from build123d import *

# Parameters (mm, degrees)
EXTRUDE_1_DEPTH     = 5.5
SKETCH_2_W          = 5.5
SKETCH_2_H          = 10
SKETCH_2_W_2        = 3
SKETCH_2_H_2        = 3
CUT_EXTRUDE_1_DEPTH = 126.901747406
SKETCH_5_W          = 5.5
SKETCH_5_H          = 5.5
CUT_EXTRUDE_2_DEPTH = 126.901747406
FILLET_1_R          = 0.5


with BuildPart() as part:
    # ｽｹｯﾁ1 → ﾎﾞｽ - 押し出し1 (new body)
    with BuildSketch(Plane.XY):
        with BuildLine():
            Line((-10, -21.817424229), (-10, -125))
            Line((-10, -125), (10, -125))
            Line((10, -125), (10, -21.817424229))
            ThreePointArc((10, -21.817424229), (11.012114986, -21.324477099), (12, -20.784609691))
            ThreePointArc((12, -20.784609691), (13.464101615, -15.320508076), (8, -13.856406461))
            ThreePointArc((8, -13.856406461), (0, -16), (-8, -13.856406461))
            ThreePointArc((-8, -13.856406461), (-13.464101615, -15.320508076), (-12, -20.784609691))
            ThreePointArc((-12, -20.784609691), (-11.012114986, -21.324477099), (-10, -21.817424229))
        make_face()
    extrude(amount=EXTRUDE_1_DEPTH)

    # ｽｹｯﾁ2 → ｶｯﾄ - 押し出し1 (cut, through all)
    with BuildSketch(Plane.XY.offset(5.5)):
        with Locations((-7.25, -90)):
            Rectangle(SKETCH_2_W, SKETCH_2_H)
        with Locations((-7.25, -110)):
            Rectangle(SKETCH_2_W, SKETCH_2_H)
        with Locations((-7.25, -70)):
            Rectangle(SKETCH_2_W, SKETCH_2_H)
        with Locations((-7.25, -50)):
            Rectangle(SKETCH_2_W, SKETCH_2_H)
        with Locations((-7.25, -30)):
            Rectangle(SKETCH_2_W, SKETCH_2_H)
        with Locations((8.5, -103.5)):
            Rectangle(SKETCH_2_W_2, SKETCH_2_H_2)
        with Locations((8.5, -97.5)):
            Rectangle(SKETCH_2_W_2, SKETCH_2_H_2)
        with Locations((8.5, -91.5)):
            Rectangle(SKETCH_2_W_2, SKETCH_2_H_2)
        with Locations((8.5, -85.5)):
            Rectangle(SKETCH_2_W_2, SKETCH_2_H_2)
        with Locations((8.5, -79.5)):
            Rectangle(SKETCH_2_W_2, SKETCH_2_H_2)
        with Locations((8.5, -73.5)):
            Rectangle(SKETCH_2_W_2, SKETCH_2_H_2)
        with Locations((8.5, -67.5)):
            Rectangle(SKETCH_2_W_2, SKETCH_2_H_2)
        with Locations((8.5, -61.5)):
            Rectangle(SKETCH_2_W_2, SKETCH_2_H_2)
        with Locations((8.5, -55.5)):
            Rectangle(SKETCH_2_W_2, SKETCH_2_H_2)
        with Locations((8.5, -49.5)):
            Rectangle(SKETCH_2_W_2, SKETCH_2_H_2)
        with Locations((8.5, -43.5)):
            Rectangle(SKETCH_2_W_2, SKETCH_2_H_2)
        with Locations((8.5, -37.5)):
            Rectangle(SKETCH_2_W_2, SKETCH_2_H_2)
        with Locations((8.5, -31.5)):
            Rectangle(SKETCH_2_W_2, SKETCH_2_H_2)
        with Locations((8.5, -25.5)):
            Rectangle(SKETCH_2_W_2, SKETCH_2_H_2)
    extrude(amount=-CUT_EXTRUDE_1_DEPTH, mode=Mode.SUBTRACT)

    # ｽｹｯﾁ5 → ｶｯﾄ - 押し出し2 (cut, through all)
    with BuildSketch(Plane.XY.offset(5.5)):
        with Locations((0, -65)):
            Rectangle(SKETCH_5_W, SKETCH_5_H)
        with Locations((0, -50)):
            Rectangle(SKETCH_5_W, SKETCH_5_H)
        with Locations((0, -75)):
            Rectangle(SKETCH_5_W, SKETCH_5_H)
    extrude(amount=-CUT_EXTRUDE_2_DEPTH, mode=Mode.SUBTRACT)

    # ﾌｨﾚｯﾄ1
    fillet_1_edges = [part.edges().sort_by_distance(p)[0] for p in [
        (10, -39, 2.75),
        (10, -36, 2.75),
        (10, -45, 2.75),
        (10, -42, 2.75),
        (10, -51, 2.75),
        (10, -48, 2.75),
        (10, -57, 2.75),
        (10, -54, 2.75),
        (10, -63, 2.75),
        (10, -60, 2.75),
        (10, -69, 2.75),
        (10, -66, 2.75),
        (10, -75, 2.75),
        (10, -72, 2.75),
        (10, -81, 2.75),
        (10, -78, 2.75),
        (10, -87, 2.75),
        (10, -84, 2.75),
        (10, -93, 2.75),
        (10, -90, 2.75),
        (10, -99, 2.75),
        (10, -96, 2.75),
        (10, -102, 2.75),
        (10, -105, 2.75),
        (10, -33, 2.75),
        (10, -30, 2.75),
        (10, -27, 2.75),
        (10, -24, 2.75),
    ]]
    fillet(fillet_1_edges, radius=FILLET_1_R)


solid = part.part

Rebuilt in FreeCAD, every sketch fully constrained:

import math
import FreeCAD as App
import Part
import Sketcher

V = App.Vector


def edges_at(feature, points):
    """Names of the edges that pass closest to the given points."""
    edges = feature.Shape.Edges
    near = lambda p: min(range(len(edges)), key=lambda i: edges[i].distToShape(Part.Vertex(*p))[0])
    return sorted({f"Edge{near(p) + 1}" for p in points})


def add_polygon(sketch, points):
    """Adds a closed chain of lines whose ends are joined by coincident constraints."""
    first, n = sketch.GeometryCount, len(points)
    for a, b in zip(points, points[1:] + points[:1]):
        sketch.addGeometry(Part.LineSegment(App.Vector(*a, 0), App.Vector(*b, 0)), False)
    for i in range(n):
        sketch.addConstraint(Sketcher.Constraint("Coincident", first + i, 2, first + (i + 1) % n, 1))

doc = App.newDocument("Part")
body = doc.addObject("PartDesign::Body", "Body")

sketch1 = body.newObject("Sketcher::SketchObject", "Sketch")
sketch1.AttachmentSupport = (doc.getObject("XY_Plane"), [""])
sketch1.MapMode = "FlatFace"
sketch1.addGeometry([
    Part.LineSegment(V(-10, -21.817424, 0), V(-10, -125, 0)),
    Part.LineSegment(V(-10, -125, 0), V(10, -125, 0)),
    Part.LineSegment(V(10, -125, 0), V(10, -21.817424, 0)),
    Part.ArcOfCircle(Part.Circle(V(0, 0, 0), V(0, 0, 1), 24), math.radians(-65.375682), math.radians(-60)),
    Part.ArcOfCircle(Part.Circle(V(10, -17.320508, 0), V(0, 0, 1), 4), math.radians(-60), math.radians(120)),
    Part.ArcOfCircle(Part.Circle(V(0, 0, 0), V(0, 0, 1), 16), math.radians(-120), math.radians(-60)),
    Part.ArcOfCircle(Part.Circle(V(-10, -17.320508, 0), V(0, 0, 1), 4), math.radians(60), math.radians(240)),
    Part.ArcOfCircle(Part.Circle(V(0, 0, 0), V(0, 0, 1), 24), math.radians(-120), math.radians(-114.624318)),
], False)
sketch1.addConstraint([
    Sketcher.Constraint("Coincident", 0, 2, 1, 1),
    Sketcher.Constraint("Coincident", 1, 2, 2, 1),
    Sketcher.Constraint("Coincident", 2, 2, 3, 1),
    Sketcher.Constraint("Tangent", 3, 2, 4, 1),
    Sketcher.Constraint("Tangent", 4, 2, 5, 2),
    Sketcher.Constraint("Tangent", 5, 1, 6, 1),
    Sketcher.Constraint("Tangent", 6, 2, 7, 1),
    Sketcher.Constraint("Coincident", 7, 2, 0, 1),
    Sketcher.Constraint("Vertical", 0),
    Sketcher.Constraint("Horizontal", 1),
    Sketcher.Constraint("Vertical", 2),
    Sketcher.Constraint("Coincident", 3, 3, -1, 1),
    Sketcher.Constraint("Coincident", 5, 3, -1, 1),
    Sketcher.Constraint("Coincident", 7, 3, -1, 1),
    Sketcher.Constraint("Equal", 4, 6),
    Sketcher.Constraint("Horizontal", 4, 3, 6, 3),
    Sketcher.Constraint("Horizontal", 2, 2, 7, 2),
    Sketcher.Constraint("Vertical", 6, 3, 0, 2),
    Sketcher.Constraint("Radius", 3, 24.0),
    Sketcher.Constraint("Radius", 4, 4.0),
    Sketcher.Constraint("DistanceX", 1, 1, 1, 2, 20.0),
    Sketcher.Constraint("DistanceY", 0, 2, -1, 1, 125.0),
])
pad1 = body.newObject("PartDesign::Pad", "Pad")
pad1.Profile = sketch1
pad1.Length = 5.5

sketch2 = body.newObject("Sketcher::SketchObject", "Sketch001")
sketch2.AttachmentSupport = (doc.getObject("XY_Plane"), [""])
sketch2.MapMode = "FlatFace"
sketch2.AttachmentOffset = App.Placement(V(0, 0, 5.5), App.Rotation())
add_polygon(sketch2, [(-10, -85), (-10, -95), (-4.5, -95), (-4.5, -85)])
add_polygon(sketch2, [(-10, -105), (-10, -115), (-4.5, -115), (-4.5, -105)])
add_polygon(sketch2, [(-10, -65), (-10, -75), (-4.5, -75), (-4.5, -65)])
add_polygon(sketch2, [(-10, -45), (-10, -55), (-4.5, -55), (-4.5, -45)])
add_polygon(sketch2, [(-10, -25), (-10, -35), (-4.5, -35), (-4.5, -25)])
add_polygon(sketch2, [(7, -102), (7, -105), (10, -105), (10, -102)])
add_polygon(sketch2, [(7, -96), (7, -99), (10, -99), (10, -96)])
add_polygon(sketch2, [(7, -90), (7, -93), (10, -93), (10, -90)])
add_polygon(sketch2, [(7, -84), (7, -87), (10, -87), (10, -84)])
add_polygon(sketch2, [(7, -78), (7, -81), (10, -81), (10, -78)])
add_polygon(sketch2, [(7, -72), (7, -75), (10, -75), (10, -72)])
add_polygon(sketch2, [(7, -66), (7, -69), (10, -69), (10, -66)])
add_polygon(sketch2, [(7, -60), (7, -63), (10, -63), (10, -60)])
add_polygon(sketch2, [(7, -54), (7, -57), (10, -57), (10, -54)])
add_polygon(sketch2, [(7, -48), (7, -51), (10, -51), (10, -48)])
add_polygon(sketch2, [(7, -42), (7, -45), (10, -45), (10, -42)])
add_polygon(sketch2, [(7, -36), (7, -39), (10, -39), (10, -36)])
add_polygon(sketch2, [(7, -30), (7, -33), (10, -33), (10, -30)])
add_polygon(sketch2, [(7, -24), (7, -27), (10, -27), (10, -24)])
sketch2.addConstraint([
    Sketcher.Constraint("Vertical", 0),
    Sketcher.Constraint("Horizontal", 1),
    Sketcher.Constraint("Vertical", 2),
    Sketcher.Constraint("Horizontal", 3),
    Sketcher.Constraint("Vertical", 4),
    Sketcher.Constraint("Horizontal", 5),
    Sketcher.Constraint("Vertical", 6),
    Sketcher.Constraint("Horizontal", 7),
    Sketcher.Constraint("Vertical", 8),
    Sketcher.Constraint("Horizontal", 9),
    Sketcher.Constraint("Vertical", 10),
    Sketcher.Constraint("Horizontal", 11),
    Sketcher.Constraint("Vertical", 12),
    Sketcher.Constraint("Horizontal", 13),
    Sketcher.Constraint("Vertical", 14),
    Sketcher.Constraint("Horizontal", 15),
    Sketcher.Constraint("Vertical", 16),
    Sketcher.Constraint("Horizontal", 17),
    Sketcher.Constraint("Vertical", 18),
    Sketcher.Constraint("Horizontal", 19),
    Sketcher.Constraint("Vertical", 20),
    Sketcher.Constraint("Horizontal", 21),
    Sketcher.Constraint("Vertical", 22),
    Sketcher.Constraint("Horizontal", 23),
    Sketcher.Constraint("Vertical", 24),
    Sketcher.Constraint("Horizontal", 25),
    Sketcher.Constraint("Vertical", 26),
    Sketcher.Constraint("Horizontal", 27),
    Sketcher.Constraint("Vertical", 28),
    Sketcher.Constraint("Horizontal", 29),
    Sketcher.Constraint("Vertical", 30),
    Sketcher.Constraint("Horizontal", 31),
    Sketcher.Constraint("Vertical", 32),
    Sketcher.Constraint("Horizontal", 33),
    Sketcher.Constraint("Vertical", 34),
    Sketcher.Constraint("Horizontal", 35),
    Sketcher.Constraint("Vertical", 36),
    Sketcher.Constraint("Horizontal", 37),
    Sketcher.Constraint("Vertical", 38),
    Sketcher.Constraint("Horizontal", 39),
    Sketcher.Constraint("Vertical", 40),
    Sketcher.Constraint("Horizontal", 41),
    Sketcher.Constraint("Vertical", 42),
    Sketcher.Constraint("Horizontal", 43),
    Sketcher.Constraint("Vertical", 44),
    Sketcher.Constraint("Horizontal", 45),
    Sketcher.Constraint("Vertical", 46),
    Sketcher.Constraint("Horizontal", 47),
    Sketcher.Constraint("Vertical", 48),
    Sketcher.Constraint("Horizontal", 49),
    Sketcher.Constraint("Vertical", 50),
    Sketcher.Constraint("Horizontal", 51),
    Sketcher.Constraint("Vertical", 52),
    Sketcher.Constraint("Horizontal", 53),
    Sketcher.Constraint("Vertical", 54),
    Sketcher.Constraint("Horizontal", 55),
    Sketcher.Constraint("Vertical", 56),
    Sketcher.Constraint("Horizontal", 57),
    Sketcher.Constraint("Vertical", 58),
    Sketcher.Constraint("Horizontal", 59),
    Sketcher.Constraint("Vertical", 60),
    Sketcher.Constraint("Horizontal", 61),
    Sketcher.Constraint("Vertical", 62),
    Sketcher.Constraint("Horizontal", 63),
    Sketcher.Constraint("Vertical", 64),
    Sketcher.Constraint("Horizontal", 65),
    Sketcher.Constraint("Vertical", 66),
    Sketcher.Constraint("Horizontal", 67),
    Sketcher.Constraint("Vertical", 68),
    Sketcher.Constraint("Horizontal", 69),
    Sketcher.Constraint("Vertical", 70),
    Sketcher.Constraint("Horizontal", 71),
    Sketcher.Constraint("Vertical", 72),
    Sketcher.Constraint("Horizontal", 73),
    Sketcher.Constraint("Vertical", 74),
    Sketcher.Constraint("Horizontal", 75),
    Sketcher.Constraint("Symmetric", 7, 2, 21, 2, -2),
    Sketcher.Constraint("Symmetric", 8, 2, 41, 2, -2),
    Sketcher.Constraint("Symmetric", 15, 2, 61, 2, -2),
    Sketcher.Constraint("Vertical", 3, 2, 4, 2),
    Sketcher.Constraint("Vertical", 2, 2, 5, 2),
    Sketcher.Constraint("Vertical", 7, 2, 8, 2),
    Sketcher.Constraint("Vertical", 6, 2, 9, 2),
    Sketcher.Constraint("Vertical", 11, 2, 12, 2),
    Sketcher.Constraint("Vertical", 10, 2, 13, 2),
    Sketcher.Constraint("Vertical", 15, 2, 16, 2),
    Sketcher.Constraint("Vertical", 14, 2, 17, 2),
    Sketcher.Constraint("Vertical", 23, 2, 24, 2),
    Sketcher.Constraint("Vertical", 22, 2, 25, 2),
    Sketcher.Constraint("Vertical", 27, 2, 28, 2),
    Sketcher.Constraint("Vertical", 26, 2, 29, 2),
    Sketcher.Constraint("Vertical", 31, 2, 32, 2),
    Sketcher.Constraint("Vertical", 30, 2, 33, 2),
    Sketcher.Constraint("Vertical", 35, 2, 36, 2),
    Sketcher.Constraint("Vertical", 34, 2, 37, 2),
    Sketcher.Constraint("Vertical", 39, 2, 40, 2),
    Sketcher.Constraint("Vertical", 43, 2, 44, 2),
    Sketcher.Constraint("Vertical", 42, 2, 45, 2),
    Sketcher.Constraint("Vertical", 47, 2, 48, 2),
    Sketcher.Constraint("Vertical", 46, 2, 49, 2),
    Sketcher.Constraint("Vertical", 51, 2, 52, 2),
    Sketcher.Constraint("Vertical", 50, 2, 53, 2),
    Sketcher.Constraint("Vertical", 55, 2, 56, 2),
    Sketcher.Constraint("Vertical", 54, 2, 57, 2),
    Sketcher.Constraint("Vertical", 59, 2, 60, 2),
    Sketcher.Constraint("Vertical", 63, 2, 64, 2),
    Sketcher.Constraint("Vertical", 62, 2, 65, 2),
    Sketcher.Constraint("Vertical", 67, 2, 68, 2),
    Sketcher.Constraint("Vertical", 66, 2, 69, 2),
    Sketcher.Constraint("Vertical", 71, 2, 72, 2),
    Sketcher.Constraint("Vertical", 70, 2, 73, 2),
    Sketcher.Constraint("Equal", 2, 4),
    Sketcher.Constraint("Equal", 6, 8),
    Sketcher.Constraint("Equal", 10, 12),
    Sketcher.Constraint("Equal", 14, 16),
    Sketcher.Constraint("Equal", 75, 20),
    Sketcher.Constraint("Equal", 22, 24),
    Sketcher.Constraint("Equal", 26, 28),
    Sketcher.Constraint("Equal", 30, 32),
    Sketcher.Constraint("Equal", 34, 36),
    Sketcher.Constraint("Equal", 38, 40),
    Sketcher.Constraint("Equal", 42, 44),
    Sketcher.Constraint("Equal", 46, 48),
    Sketcher.Constraint("Equal", 50, 52),
    Sketcher.Constraint("Equal", 54, 56),
    Sketcher.Constraint("Equal", 58, 60),
    Sketcher.Constraint("Equal", 62, 64),
    Sketcher.Constraint("Equal", 66, 68),
    Sketcher.Constraint("Equal", 70, 72),
    Sketcher.Constraint("DistanceX", 21, 1, 21, 2, 3.0),
    Sketcher.Constraint("DistanceY", 0, 2, 0, 1, 10.0),
    Sketcher.Constraint("DistanceX", 1, 1, 1, 2, 5.5),
    Sketcher.Constraint("DistanceX", 0, 2, -1, 1, 10.0),
    Sketcher.Constraint("DistanceY", 0, 2, -1, 1, 95.0),
    Sketcher.Constraint("DistanceY", 4, 2, -1, 1, 115.0),
    Sketcher.Constraint("DistanceY", 8, 2, -1, 1, 75.0),
    Sketcher.Constraint("DistanceY", 12, 2, -1, 1, 55.0),
    Sketcher.Constraint("DistanceY", 16, 2, -1, 1, 35.0),
    Sketcher.Constraint("DistanceY", 24, 2, -1, 1, 99.0),
    Sketcher.Constraint("DistanceY", 28, 2, -1, 1, 93.0),
    Sketcher.Constraint("DistanceY", 32, 2, -1, 1, 87.0),
    Sketcher.Constraint("DistanceY", 36, 2, -1, 1, 81.0),
    Sketcher.Constraint("DistanceY", 44, 2, -1, 1, 69.0),
    Sketcher.Constraint("DistanceY", 48, 2, -1, 1, 63.0),
    Sketcher.Constraint("DistanceY", 52, 2, -1, 1, 57.0),
    Sketcher.Constraint("DistanceY", 56, 2, -1, 1, 51.0),
    Sketcher.Constraint("DistanceY", 64, 2, -1, 1, 39.0),
    Sketcher.Constraint("DistanceY", 68, 2, -1, 1, 33.0),
    Sketcher.Constraint("DistanceY", 72, 2, -1, 1, 27.0),
])
pocket1 = body.newObject("PartDesign::Pocket", "Pocket")
pocket1.Profile = sketch2
pocket1.Type = "ThroughAll"

sketch3 = body.newObject("Sketcher::SketchObject", "Sketch002")
sketch3.AttachmentSupport = (doc.getObject("XY_Plane"), [""])
sketch3.MapMode = "FlatFace"
sketch3.AttachmentOffset = App.Placement(V(0, 0, 5.5), App.Rotation())
add_polygon(sketch3, [(-2.75, -62.25), (-2.75, -67.75), (2.75, -67.75), (2.75, -62.25)])
add_polygon(sketch3, [(-2.75, -47.25), (-2.75, -52.75), (2.75, -52.75), (2.75, -47.25)])
add_polygon(sketch3, [(-2.75, -72.25), (-2.75, -77.75), (2.75, -77.75), (2.75, -72.25)])
sketch3.addConstraint([
    Sketcher.Constraint("Vertical", 0),
    Sketcher.Constraint("Horizontal", 1),
    Sketcher.Constraint("Vertical", 2),
    Sketcher.Constraint("Horizontal", 3),
    Sketcher.Constraint("Vertical", 4),
    Sketcher.Constraint("Horizontal", 5),
    Sketcher.Constraint("Vertical", 6),
    Sketcher.Constraint("Horizontal", 7),
    Sketcher.Constraint("Vertical", 8),
    Sketcher.Constraint("Horizontal", 9),
    Sketcher.Constraint("Vertical", 10),
    Sketcher.Constraint("Horizontal", 11),
    Sketcher.Constraint("Vertical", 3, 2, 4, 2),
    Sketcher.Constraint("Vertical", 2, 2, 5, 2),
    Sketcher.Constraint("Vertical", 7, 2, 8, 2),
    Sketcher.Constraint("Vertical", 6, 2, 9, 2),
    Sketcher.Constraint("Equal", 11, 0),
    Sketcher.Constraint("Equal", 2, 4),
    Sketcher.Constraint("Equal", 6, 8),
    Sketcher.Constraint("DistanceX", 1, 1, 1, 2, 5.5),
    Sketcher.Constraint("DistanceY", 0, 2, 4, 2, 15.0),
    Sketcher.Constraint("DistanceY", 8, 2, 0, 2, 10.0),
    Sketcher.Constraint("DistanceX", 0, 2, -1, 1, 2.75),
    Sketcher.Constraint("DistanceY", 0, 2, -1, 1, 67.75),
])
pocket2 = body.newObject("PartDesign::Pocket", "Pocket001")
pocket2.Profile = sketch3
pocket2.Type = "ThroughAll"
doc.recompute()

fillet = body.newObject("PartDesign::Fillet", "Fillet")
fillet.Base = (pocket2, edges_at(pocket2, [
    (10, -39, 2.75),
    (10, -36, 2.75),
    (10, -45, 2.75),
    (10, -42, 2.75),
    (10, -51, 2.75),
    (10, -48, 2.75),
    (10, -57, 2.75),
    (10, -54, 2.75),
    (10, -63, 2.75),
    (10, -60, 2.75),
    (10, -69, 2.75),
    (10, -66, 2.75),
    (10, -75, 2.75),
    (10, -72, 2.75),
    (10, -81, 2.75),
    (10, -78, 2.75),
    (10, -87, 2.75),
    (10, -84, 2.75),
    (10, -93, 2.75),
    (10, -90, 2.75),
    (10, -99, 2.75),
    (10, -96, 2.75),
    (10, -102, 2.75),
    (10, -105, 2.75),
    (10, -33, 2.75),
    (10, -30, 2.75),
    (10, -27, 2.75),
    (10, -24, 2.75),
]))
fillet.Radius = 0.5

doc.recompute()
